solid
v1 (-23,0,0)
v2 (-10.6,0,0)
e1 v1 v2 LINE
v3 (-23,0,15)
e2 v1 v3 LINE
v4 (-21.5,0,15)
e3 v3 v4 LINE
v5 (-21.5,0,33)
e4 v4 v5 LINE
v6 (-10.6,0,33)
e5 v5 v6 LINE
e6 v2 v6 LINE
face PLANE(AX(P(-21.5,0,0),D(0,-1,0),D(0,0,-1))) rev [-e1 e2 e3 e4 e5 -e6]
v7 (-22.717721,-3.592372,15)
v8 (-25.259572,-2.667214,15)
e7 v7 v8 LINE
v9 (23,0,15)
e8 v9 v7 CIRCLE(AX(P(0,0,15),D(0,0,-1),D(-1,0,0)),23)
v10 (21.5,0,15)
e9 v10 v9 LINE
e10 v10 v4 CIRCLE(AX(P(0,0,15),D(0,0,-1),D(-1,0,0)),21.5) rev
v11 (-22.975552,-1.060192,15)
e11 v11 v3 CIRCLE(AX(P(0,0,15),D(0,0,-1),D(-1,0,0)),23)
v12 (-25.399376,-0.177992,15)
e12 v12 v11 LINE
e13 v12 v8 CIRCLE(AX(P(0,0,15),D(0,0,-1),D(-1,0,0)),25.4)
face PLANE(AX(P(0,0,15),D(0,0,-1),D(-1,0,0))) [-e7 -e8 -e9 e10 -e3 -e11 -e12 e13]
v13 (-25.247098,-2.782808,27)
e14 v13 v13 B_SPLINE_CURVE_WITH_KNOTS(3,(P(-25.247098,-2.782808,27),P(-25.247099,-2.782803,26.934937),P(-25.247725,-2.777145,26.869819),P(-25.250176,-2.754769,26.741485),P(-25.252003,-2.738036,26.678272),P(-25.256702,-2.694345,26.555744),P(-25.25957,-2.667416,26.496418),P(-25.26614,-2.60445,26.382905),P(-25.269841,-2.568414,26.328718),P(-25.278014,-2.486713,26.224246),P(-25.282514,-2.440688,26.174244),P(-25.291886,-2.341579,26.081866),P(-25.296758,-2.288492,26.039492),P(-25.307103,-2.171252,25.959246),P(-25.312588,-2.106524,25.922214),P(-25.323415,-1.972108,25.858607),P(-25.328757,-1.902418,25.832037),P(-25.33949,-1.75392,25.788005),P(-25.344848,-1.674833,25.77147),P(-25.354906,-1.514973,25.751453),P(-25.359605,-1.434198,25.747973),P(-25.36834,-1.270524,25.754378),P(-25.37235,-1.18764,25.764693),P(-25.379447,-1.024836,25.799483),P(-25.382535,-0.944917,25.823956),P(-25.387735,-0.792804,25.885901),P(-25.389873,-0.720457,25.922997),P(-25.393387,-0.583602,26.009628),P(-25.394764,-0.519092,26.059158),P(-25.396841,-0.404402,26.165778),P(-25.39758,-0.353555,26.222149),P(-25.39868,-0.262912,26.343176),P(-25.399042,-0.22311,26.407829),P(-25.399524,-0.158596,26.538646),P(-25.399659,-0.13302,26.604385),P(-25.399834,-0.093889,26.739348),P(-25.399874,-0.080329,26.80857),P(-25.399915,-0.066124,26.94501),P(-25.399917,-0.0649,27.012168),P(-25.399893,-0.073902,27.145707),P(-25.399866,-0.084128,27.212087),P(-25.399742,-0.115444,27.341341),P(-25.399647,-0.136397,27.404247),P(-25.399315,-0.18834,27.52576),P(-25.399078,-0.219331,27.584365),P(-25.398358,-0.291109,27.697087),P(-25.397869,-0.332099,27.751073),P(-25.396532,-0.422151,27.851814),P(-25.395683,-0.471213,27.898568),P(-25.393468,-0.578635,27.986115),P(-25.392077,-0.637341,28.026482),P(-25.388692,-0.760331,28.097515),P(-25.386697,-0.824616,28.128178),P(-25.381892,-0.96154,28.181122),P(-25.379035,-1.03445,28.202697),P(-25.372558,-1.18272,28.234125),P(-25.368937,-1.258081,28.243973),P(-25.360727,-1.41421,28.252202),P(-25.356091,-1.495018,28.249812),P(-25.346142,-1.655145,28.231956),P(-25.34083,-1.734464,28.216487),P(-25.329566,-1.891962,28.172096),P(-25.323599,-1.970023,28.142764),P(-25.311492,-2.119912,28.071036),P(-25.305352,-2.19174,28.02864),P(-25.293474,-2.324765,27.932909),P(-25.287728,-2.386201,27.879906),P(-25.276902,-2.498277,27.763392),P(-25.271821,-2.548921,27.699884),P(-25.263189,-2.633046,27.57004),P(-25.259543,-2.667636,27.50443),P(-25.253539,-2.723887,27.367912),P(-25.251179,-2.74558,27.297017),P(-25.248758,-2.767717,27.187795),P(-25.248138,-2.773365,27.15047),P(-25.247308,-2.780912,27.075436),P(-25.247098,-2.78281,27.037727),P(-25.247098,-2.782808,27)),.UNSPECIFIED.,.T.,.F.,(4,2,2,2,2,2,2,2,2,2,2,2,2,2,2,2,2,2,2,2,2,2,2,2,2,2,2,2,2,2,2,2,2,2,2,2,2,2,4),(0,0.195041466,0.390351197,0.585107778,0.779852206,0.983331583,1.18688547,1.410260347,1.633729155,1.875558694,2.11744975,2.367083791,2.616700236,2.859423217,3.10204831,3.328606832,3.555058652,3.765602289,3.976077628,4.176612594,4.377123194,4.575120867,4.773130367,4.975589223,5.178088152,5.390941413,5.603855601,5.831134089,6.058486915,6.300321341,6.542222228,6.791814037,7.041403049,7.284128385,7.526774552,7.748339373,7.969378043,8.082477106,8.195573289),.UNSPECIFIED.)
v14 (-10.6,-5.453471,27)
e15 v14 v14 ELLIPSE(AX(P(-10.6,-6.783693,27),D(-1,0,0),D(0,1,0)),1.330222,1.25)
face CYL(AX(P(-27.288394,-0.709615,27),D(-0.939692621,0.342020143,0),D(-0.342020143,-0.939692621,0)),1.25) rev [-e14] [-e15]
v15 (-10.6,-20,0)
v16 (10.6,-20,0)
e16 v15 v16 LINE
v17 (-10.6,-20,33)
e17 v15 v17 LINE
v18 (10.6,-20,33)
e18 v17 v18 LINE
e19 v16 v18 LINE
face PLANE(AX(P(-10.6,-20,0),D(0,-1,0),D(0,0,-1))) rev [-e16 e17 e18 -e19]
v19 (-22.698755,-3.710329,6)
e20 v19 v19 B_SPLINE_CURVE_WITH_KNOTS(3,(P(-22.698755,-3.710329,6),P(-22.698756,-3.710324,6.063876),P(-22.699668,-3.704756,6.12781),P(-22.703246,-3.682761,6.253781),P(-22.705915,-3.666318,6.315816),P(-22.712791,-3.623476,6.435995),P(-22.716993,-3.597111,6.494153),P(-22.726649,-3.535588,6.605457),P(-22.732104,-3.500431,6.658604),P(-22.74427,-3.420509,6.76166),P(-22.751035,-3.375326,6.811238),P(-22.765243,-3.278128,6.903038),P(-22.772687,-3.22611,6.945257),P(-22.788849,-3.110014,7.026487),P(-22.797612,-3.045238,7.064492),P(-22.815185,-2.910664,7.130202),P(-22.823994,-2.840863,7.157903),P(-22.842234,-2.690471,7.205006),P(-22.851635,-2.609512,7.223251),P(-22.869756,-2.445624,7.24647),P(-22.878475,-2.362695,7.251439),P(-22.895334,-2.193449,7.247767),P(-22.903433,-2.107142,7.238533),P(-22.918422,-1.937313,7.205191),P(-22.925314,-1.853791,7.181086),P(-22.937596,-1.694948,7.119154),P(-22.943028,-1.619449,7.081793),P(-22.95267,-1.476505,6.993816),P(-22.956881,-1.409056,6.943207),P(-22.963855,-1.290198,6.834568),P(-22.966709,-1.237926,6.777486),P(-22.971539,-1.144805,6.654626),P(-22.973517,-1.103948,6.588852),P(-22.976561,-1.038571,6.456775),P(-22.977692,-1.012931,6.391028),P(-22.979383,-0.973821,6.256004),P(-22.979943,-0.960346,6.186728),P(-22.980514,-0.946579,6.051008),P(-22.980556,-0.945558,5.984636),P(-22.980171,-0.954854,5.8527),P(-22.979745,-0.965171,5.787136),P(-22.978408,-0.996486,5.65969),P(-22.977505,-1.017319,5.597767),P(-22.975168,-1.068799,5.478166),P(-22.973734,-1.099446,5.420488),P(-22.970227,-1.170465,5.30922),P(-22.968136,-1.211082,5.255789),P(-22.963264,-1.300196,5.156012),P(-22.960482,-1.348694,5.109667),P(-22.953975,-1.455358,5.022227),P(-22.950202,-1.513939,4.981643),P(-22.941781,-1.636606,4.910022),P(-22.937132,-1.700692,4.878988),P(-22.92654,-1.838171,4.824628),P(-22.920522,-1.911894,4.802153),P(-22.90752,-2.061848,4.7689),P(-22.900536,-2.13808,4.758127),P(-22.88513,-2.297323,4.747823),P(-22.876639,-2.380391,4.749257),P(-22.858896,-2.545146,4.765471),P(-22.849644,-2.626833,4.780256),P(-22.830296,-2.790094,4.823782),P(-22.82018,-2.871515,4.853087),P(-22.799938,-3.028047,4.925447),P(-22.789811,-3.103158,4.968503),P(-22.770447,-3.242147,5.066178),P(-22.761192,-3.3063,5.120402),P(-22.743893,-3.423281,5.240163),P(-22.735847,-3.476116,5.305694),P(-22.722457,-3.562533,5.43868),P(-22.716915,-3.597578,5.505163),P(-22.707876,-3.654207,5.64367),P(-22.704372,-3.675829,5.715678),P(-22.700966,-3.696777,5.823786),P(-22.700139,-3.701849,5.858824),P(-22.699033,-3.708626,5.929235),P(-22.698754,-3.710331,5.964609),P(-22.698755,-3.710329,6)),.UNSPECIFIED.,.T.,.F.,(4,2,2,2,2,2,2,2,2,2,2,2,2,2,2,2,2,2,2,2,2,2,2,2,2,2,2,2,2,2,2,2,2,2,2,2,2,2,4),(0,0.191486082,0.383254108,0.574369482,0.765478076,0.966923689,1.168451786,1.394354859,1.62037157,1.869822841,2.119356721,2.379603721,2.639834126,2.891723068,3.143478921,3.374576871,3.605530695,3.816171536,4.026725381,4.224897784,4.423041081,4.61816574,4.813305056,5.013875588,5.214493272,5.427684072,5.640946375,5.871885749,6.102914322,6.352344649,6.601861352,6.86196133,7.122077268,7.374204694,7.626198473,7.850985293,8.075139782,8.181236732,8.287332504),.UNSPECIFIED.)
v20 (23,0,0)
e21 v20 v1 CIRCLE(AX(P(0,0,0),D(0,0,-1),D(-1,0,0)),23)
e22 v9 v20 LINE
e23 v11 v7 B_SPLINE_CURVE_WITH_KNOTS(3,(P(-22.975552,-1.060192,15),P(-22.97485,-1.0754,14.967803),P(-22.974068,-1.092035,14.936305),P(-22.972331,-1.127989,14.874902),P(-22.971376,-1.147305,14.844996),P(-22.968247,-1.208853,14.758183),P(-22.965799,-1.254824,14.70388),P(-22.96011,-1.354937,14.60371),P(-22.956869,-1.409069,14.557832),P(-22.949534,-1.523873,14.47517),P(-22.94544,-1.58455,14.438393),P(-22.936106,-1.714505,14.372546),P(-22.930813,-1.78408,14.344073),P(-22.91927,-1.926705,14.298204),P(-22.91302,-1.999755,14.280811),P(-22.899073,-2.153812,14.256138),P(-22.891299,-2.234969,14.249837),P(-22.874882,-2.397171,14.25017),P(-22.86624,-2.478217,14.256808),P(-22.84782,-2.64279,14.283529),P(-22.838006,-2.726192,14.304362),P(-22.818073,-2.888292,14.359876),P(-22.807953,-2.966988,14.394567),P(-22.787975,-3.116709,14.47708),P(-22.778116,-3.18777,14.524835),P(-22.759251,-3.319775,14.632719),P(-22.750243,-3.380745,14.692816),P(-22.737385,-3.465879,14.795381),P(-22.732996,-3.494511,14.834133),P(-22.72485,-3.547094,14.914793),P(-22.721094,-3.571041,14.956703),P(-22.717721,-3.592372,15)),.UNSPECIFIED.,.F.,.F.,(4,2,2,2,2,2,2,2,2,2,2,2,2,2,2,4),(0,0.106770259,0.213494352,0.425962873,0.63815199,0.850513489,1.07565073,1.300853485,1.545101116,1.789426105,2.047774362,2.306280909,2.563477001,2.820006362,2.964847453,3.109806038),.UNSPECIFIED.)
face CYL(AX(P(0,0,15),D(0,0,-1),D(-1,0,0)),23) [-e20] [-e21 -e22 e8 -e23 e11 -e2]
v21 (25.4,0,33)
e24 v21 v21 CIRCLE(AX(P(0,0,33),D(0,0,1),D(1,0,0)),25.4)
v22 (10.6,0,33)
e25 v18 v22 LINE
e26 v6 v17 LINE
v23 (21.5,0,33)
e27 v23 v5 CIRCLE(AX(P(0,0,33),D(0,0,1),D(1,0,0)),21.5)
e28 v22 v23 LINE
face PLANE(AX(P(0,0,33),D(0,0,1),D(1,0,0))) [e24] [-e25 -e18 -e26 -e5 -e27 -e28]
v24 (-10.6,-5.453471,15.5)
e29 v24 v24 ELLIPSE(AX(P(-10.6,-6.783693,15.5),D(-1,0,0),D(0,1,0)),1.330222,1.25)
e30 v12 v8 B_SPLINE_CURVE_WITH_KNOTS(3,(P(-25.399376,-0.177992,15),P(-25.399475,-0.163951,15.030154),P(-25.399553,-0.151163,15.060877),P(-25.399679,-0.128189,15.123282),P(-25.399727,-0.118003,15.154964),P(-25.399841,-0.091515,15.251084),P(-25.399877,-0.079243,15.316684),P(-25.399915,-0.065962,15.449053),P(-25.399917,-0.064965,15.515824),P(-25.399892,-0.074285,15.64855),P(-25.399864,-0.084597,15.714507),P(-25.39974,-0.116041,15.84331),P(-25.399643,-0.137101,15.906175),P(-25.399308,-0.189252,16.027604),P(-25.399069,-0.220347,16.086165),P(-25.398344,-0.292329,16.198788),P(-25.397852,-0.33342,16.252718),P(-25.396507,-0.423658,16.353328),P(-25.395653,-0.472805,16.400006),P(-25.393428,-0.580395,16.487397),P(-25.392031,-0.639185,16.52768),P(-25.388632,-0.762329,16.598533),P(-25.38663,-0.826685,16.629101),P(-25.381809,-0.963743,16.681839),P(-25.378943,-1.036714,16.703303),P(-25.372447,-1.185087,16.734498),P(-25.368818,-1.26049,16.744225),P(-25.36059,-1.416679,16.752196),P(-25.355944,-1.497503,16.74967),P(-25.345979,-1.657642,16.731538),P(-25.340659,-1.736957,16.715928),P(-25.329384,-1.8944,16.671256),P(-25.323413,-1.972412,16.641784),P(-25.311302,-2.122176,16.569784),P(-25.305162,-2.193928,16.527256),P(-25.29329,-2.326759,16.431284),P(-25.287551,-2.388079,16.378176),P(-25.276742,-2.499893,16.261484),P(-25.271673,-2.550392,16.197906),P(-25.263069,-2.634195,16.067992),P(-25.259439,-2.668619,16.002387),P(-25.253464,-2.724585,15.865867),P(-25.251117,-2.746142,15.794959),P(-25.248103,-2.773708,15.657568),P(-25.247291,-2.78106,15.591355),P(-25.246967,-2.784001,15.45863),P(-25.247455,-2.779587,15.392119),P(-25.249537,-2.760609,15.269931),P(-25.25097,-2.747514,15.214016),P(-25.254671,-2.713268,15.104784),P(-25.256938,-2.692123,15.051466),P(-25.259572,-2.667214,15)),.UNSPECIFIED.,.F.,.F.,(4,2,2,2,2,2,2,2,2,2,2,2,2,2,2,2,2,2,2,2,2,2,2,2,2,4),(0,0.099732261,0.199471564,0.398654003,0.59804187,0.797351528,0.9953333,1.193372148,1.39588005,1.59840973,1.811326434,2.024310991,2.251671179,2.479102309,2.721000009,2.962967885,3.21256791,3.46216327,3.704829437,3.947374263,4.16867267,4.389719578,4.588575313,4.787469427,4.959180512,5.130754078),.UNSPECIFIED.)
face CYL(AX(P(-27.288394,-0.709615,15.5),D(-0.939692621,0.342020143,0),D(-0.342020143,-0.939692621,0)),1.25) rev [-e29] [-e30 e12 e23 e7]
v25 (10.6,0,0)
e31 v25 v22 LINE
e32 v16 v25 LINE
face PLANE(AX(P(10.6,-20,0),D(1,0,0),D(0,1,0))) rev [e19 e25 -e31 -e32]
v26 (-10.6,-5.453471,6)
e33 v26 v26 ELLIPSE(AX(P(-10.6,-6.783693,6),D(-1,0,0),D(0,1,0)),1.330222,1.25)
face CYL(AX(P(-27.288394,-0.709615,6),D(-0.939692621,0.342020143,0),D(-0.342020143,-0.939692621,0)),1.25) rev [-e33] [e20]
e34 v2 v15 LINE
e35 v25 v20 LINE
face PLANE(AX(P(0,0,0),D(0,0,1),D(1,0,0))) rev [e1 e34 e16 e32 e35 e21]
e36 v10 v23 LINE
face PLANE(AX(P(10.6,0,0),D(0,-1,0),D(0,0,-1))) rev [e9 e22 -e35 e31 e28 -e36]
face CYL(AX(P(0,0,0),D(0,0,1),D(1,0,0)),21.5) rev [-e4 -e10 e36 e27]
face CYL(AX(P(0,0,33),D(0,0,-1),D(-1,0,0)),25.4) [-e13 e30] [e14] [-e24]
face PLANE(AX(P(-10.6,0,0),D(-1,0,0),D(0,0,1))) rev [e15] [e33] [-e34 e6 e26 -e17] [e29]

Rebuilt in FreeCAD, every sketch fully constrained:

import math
import FreeCAD as App
import Part
import Sketcher

V = App.Vector


def add_polygon(sketch, points):
    """Adds a closed chain of lines whose ends are joined by coincident constraints."""
    first, n = sketch.GeometryCount, len(points)
    for a, b in zip(points, points[1:] + points[:1]):
        sketch.addGeometry(Part.LineSegment(App.Vector(*a, 0), App.Vector(*b, 0)), False)
    for i in range(n):
        sketch.addConstraint(Sketcher.Constraint("Coincident", first + i, 2, first + (i + 1) % n, 1))

doc = App.newDocument("Part")
body = doc.addObject("PartDesign::Body", "Body")

sketch1 = body.newObject("Sketcher::SketchObject", "Sketch")
sketch1.AttachmentSupport = (doc.getObject("XY_Plane"), [""])
sketch1.MapMode = "FlatFace"
sketch1.addGeometry(Part.Circle(V(0, 0, 0), V(0, 0, 1), 25), False)
sketch1.addConstraint([
    Sketcher.Constraint("Coincident", 0, 3, -1, 1),
    Sketcher.Constraint("Diameter", 0, 50.8),
])
pad1 = body.newObject("PartDesign::Pad", "Pad")
pad1.Profile = sketch1
pad1.Length = 33

sketch2 = body.newObject("Sketcher::SketchObject", "Sketch001")
sketch2.AttachmentSupport = (doc.getObject("XY_Plane"), [""])
sketch2.MapMode = "FlatFace"
sketch2.AttachmentOffset = App.Placement(V(0, 0, 33), App.Rotation())
sketch2.addGeometry([
    Part.LineSegment(V(-22, 0, 0), V(-11, 0, 0)),
    Part.LineSegment(V(-11, 0, 0), V(-11, -20, 0)),
    Part.LineSegment(V(-11, -20, 0), V(11, -20, 0)),
    Part.LineSegment(V(11, -20, 0), V(11, 0, 0)),
    Part.LineSegment(V(11, 0, 0), V(22, 0, 0)),
    Part.ArcOfCircle(Part.Circle(V(0, 0, 0), V(0, 0, 1), 22), math.radians(0), math.radians(180)),
], False)
sketch2.addConstraint([
    Sketcher.Constraint("Coincident", 0, 2, 1, 1),
    Sketcher.Constraint("Coincident", 1, 2, 2, 1),
    Sketcher.Constraint("Coincident", 2, 2, 3, 1),
    Sketcher.Constraint("Coincident", 3, 2, 4, 1),
    Sketcher.Constraint("Coincident", 4, 2, 5, 1),
    Sketcher.Constraint("Coincident", 5, 2, 0, 1),
    Sketcher.Constraint("Horizontal", 0),
    Sketcher.Constraint("Vertical", 1),
    Sketcher.Constraint("Horizontal", 2),
    Sketcher.Constraint("Vertical", 3),
    Sketcher.Constraint("Horizontal", 4),
    Sketcher.Constraint("Coincident", 5, 3, -1, 1),
    Sketcher.Constraint("Symmetric", 0, 2, 3, 2, -1, 1),
    Sketcher.Constraint("PointOnObject", 0, 2, -1),
    Sketcher.Constraint("Radius", 5, 21.5),
    Sketcher.Constraint("DistanceY", 1, 2, 1, 1, 20.0),
    Sketcher.Constraint("DistanceX", 0, 1, 0, 2, 10.9),
])
pocket1 = body.newObject("PartDesign::Pocket", "Pocket")
pocket1.Profile = sketch2
pocket1.Type = "ThroughAll"

sketch3 = body.newObject("Sketcher::SketchObject", "Sketch002")
sketch3.AttachmentSupport = (doc.getObject("XY_Plane"), [""])
sketch3.MapMode = "FlatFace"
sketch3.addGeometry([
    Part.Circle(V(0, 0, 0), V(0, 0, 1), 25),
    Part.Circle(V(0, 0, 0), V(0, 0, 1), 23),
], False)
sketch3.addConstraint([
    Sketcher.Constraint("Coincident", 0, 3, -1, 1),
    Sketcher.Constraint("Coincident", 1, 3, -1, 1),
    Sketcher.Constraint("Diameter", 1, 46.0),
    Sketcher.Constraint("Diameter", 0, 50.8),
])
pocket2 = body.newObject("PartDesign::Pocket", "Pocket001")
pocket2.Profile = sketch3
pocket2.Length = 15
pocket2.Reversed = True

sketch4 = body.newObject("Sketcher::SketchObject", "Sketch003")
sketch4.Placement = App.Placement(V(-23.868193, 8.687312, 0), App.Rotation(V(0, 0, -1), V(-0.342020143, -0.939692621, 0), V(-0.939692621, 0.342020143, 0), "ZXY"))
sketch4.addGeometry([
    Part.Circle(V(-27, 10, 0), V(0, 0, 1), 1.2),
    Part.Circle(V(-15.5, 10, 0), V(0, 0, 1), 1.2),
    Part.Circle(V(-6, 10, 0), V(0, 0, 1), 1.2),
], False)
sketch4.addConstraint([
    Sketcher.Constraint("Equal", 0, 1),
    Sketcher.Constraint("Equal", 1, 2),
    Sketcher.Constraint("Horizontal", 0, 3, 1, 3),
    Sketcher.Constraint("Horizontal", 1, 3, 2, 3),
    Sketcher.Constraint("Diameter", 0, 2.5),
    Sketcher.Constraint("DistanceX", 0, 3, -1, 1, 27.0),
    Sketcher.Constraint("DistanceY", -1, 1, 0, 3, 10.0),
    Sketcher.Constraint("DistanceX", 2, 3, -1, 1, 6.0),
    Sketcher.Constraint("DistanceX", 1, 3, -1, 1, 15.5),
])
doc.recompute()
hole = body.newObject("PartDesign::Hole", "Hole")
hole.Profile = sketch4
hole.ThreadType = "None"
hole.Diameter = 2.5
hole.DepthType = "Dimension"
hole.Depth = 25
hole.DrillPoint = "Angled"
hole.DrillPointAngle = 118
hole.HoleCutType = "Countersink"
hole.HoleCutDiameter = 3.05
hole.HoleCutCountersinkAngle = 90

sketch5 = body.newObject("Sketcher::SketchObject", "Sketch004")
sketch5.AttachmentSupport = (doc.getObject("XY_Plane"), [""])
sketch5.MapMode = "FlatFace"
add_polygon(sketch5, [(26, 26), (26, 0), (-29, 0), (-29, 26)])
sketch5.addConstraint([
    Sketcher.Constraint("Vertical", 0),
    Sketcher.Constraint("Horizontal", 1),
    Sketcher.Constraint("Vertical", 2),
    Sketcher.Constraint("Horizontal", 3),
    Sketcher.Constraint("PointOnObject", 0, 2, -1),
    Sketcher.Constraint("DistanceX", 1, 2, 1, 1, 55.513598),
    Sketcher.Constraint("DistanceX", 1, 2, -1, 1, 29.236002),
    Sketcher.Constraint("DistanceY", 0, 2, 0, 1, 26.495126),
])
pocket3 = body.newObject("PartDesign::Pocket", "Pocket002")
pocket3.Profile = sketch5
pocket3.Length = 15
pocket3.Reversed = True

doc.recompute()
